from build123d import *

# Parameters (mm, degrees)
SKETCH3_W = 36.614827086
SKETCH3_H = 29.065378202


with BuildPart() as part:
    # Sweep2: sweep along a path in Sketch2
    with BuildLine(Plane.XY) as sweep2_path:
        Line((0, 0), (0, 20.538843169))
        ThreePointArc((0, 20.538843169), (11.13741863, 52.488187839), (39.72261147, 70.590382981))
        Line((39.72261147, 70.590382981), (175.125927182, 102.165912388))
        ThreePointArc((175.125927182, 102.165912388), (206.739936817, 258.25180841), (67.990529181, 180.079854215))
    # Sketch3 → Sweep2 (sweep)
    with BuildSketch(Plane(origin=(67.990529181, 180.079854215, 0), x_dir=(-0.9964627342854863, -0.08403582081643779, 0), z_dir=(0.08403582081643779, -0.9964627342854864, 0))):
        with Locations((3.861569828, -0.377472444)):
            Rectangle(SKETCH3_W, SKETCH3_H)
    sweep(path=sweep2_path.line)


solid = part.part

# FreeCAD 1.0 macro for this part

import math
import FreeCAD as App
import Part
import Sketcher
Q = App.Units.Quantity


def add_polygon(sketch, points):
    """Adds a closed chain of lines whose ends are joined by coincident constraints."""
    first, n = sketch.GeometryCount, len(points)
    for a, b in zip(points, points[1:] + points[:1]):
        sketch.addGeometry(Part.LineSegment(App.Vector(*a, 0), App.Vector(*b, 0)), False)
    for i in range(n):
        sketch.addConstraint(Sketcher.Constraint("Coincident", first + i, 2, first + (i + 1) % n, 1))

doc = App.newDocument("Part")
body = doc.addObject("PartDesign::Body", "Body")

sketch1 = body.newObject("Sketcher::SketchObject", "Sketch")
sketch1.Placement = App.Placement(App.Vector(67.990529, 180.079854, 0), App.Rotation(App.Vector(-0.996462734, -0.084035821, 0), App.Vector(0, 0, -0.999999999), App.Vector(0.084035821, -0.996462734, 0), "ZXY"))
add_polygon(sketch1, [(-14.445844, 14.155217), (-14.445844, -14.910162), (22.168983, -14.910162), (22.168983, 14.155217)])
sketch1.addConstraint(Sketcher.Constraint("Vertical", 0))
sketch1.addConstraint(Sketcher.Constraint("Horizontal", 1))
sketch1.addConstraint(Sketcher.Constraint("Vertical", 2))
sketch1.addConstraint(Sketcher.Constraint("Horizontal", 3))
sketch1.addConstraint(Sketcher.Constraint("DistanceY", 0, 2, 0, 1, Q("29.065378 mm")))
sketch1.addConstraint(Sketcher.Constraint("DistanceX", 1, 1, 1, 2, Q("36.614827 mm")))
sketch1.addConstraint(Sketcher.Constraint("DistanceY", 0, 2, -1, 1, Q("14.910162 mm")))
sketch1.addConstraint(Sketcher.Constraint("DistanceX", 0, 2, -1, 1, Q("14.445844 mm")))

sketch2 = body.newObject("Sketcher::SketchObject", "Sketch001")
sketch2.AttachmentSupport = (doc.getObject("XY_Plane"), [""])
sketch2.MapMode = "FlatFace"
sketch2.addGeometry(Part.LineSegment(App.Vector(0, 0, 0), App.Vector(0, 20.538843, 0)), False)
sketch2.addGeometry(Part.ArcOfCircle(Part.Circle(App.Vector(51.394437, 20.538843, 0), App.Vector(0, 0, 1), 51.394437), math.radians(103.126567), math.radians(180)), False)
sketch2.addGeometry(Part.LineSegment(App.Vector(39.722611, 70.590383, 0), App.Vector(175.125927, 102.165912, 0)), False)
sketch2.addGeometry(Part.ArcOfCircle(Part.Circle(App.Vector(155.240799, 187.43803, 0), App.Vector(0, 0, 1), 87.559993), math.radians(-76.873433), math.radians(184.820583)), False)
sketch2.addConstraint(Sketcher.Constraint("Tangent", 0, 2, 1, 2))
sketch2.addConstraint(Sketcher.Constraint("Tangent", 1, 1, 2, 1))
sketch2.addConstraint(Sketcher.Constraint("Tangent", 2, 2, 3, 1))
sketch2.addConstraint(Sketcher.Constraint("Vertical", 0))
sketch2.addConstraint(Sketcher.Constraint("Coincident", 0, 1, -1, 1))
sketch2.addConstraint(Sketcher.Constraint("Radius", 1, Q("51.394437 mm")))
sketch2.addConstraint(Sketcher.Constraint("Radius", 3, Q("87.559993 mm")))
sketch2.addConstraint(Sketcher.Constraint("DistanceX", -1, 1, 3, 3, Q("155.240799 mm")))
sketch2.addConstraint(Sketcher.Constraint("DistanceX", 3, 2, 2, 2, Q("107.135398 mm")))
sketch2.addConstraint(Sketcher.Constraint("DistanceY", 0, 1, 0, 2, Q("20.538843 mm")))
sketch2.addConstraint(Sketcher.Constraint("DistanceY", -1, 1, 3, 3, Q("187.43803 mm")))
doc.recompute()

additivepipe = body.newObject("PartDesign::AdditivePipe", "AdditivePipe")
additivepipe.Profile = sketch1
additivepipe.Spine = (sketch2, ["Edge1", "Edge2", "Edge3", "Edge4"])

doc.recompute()
